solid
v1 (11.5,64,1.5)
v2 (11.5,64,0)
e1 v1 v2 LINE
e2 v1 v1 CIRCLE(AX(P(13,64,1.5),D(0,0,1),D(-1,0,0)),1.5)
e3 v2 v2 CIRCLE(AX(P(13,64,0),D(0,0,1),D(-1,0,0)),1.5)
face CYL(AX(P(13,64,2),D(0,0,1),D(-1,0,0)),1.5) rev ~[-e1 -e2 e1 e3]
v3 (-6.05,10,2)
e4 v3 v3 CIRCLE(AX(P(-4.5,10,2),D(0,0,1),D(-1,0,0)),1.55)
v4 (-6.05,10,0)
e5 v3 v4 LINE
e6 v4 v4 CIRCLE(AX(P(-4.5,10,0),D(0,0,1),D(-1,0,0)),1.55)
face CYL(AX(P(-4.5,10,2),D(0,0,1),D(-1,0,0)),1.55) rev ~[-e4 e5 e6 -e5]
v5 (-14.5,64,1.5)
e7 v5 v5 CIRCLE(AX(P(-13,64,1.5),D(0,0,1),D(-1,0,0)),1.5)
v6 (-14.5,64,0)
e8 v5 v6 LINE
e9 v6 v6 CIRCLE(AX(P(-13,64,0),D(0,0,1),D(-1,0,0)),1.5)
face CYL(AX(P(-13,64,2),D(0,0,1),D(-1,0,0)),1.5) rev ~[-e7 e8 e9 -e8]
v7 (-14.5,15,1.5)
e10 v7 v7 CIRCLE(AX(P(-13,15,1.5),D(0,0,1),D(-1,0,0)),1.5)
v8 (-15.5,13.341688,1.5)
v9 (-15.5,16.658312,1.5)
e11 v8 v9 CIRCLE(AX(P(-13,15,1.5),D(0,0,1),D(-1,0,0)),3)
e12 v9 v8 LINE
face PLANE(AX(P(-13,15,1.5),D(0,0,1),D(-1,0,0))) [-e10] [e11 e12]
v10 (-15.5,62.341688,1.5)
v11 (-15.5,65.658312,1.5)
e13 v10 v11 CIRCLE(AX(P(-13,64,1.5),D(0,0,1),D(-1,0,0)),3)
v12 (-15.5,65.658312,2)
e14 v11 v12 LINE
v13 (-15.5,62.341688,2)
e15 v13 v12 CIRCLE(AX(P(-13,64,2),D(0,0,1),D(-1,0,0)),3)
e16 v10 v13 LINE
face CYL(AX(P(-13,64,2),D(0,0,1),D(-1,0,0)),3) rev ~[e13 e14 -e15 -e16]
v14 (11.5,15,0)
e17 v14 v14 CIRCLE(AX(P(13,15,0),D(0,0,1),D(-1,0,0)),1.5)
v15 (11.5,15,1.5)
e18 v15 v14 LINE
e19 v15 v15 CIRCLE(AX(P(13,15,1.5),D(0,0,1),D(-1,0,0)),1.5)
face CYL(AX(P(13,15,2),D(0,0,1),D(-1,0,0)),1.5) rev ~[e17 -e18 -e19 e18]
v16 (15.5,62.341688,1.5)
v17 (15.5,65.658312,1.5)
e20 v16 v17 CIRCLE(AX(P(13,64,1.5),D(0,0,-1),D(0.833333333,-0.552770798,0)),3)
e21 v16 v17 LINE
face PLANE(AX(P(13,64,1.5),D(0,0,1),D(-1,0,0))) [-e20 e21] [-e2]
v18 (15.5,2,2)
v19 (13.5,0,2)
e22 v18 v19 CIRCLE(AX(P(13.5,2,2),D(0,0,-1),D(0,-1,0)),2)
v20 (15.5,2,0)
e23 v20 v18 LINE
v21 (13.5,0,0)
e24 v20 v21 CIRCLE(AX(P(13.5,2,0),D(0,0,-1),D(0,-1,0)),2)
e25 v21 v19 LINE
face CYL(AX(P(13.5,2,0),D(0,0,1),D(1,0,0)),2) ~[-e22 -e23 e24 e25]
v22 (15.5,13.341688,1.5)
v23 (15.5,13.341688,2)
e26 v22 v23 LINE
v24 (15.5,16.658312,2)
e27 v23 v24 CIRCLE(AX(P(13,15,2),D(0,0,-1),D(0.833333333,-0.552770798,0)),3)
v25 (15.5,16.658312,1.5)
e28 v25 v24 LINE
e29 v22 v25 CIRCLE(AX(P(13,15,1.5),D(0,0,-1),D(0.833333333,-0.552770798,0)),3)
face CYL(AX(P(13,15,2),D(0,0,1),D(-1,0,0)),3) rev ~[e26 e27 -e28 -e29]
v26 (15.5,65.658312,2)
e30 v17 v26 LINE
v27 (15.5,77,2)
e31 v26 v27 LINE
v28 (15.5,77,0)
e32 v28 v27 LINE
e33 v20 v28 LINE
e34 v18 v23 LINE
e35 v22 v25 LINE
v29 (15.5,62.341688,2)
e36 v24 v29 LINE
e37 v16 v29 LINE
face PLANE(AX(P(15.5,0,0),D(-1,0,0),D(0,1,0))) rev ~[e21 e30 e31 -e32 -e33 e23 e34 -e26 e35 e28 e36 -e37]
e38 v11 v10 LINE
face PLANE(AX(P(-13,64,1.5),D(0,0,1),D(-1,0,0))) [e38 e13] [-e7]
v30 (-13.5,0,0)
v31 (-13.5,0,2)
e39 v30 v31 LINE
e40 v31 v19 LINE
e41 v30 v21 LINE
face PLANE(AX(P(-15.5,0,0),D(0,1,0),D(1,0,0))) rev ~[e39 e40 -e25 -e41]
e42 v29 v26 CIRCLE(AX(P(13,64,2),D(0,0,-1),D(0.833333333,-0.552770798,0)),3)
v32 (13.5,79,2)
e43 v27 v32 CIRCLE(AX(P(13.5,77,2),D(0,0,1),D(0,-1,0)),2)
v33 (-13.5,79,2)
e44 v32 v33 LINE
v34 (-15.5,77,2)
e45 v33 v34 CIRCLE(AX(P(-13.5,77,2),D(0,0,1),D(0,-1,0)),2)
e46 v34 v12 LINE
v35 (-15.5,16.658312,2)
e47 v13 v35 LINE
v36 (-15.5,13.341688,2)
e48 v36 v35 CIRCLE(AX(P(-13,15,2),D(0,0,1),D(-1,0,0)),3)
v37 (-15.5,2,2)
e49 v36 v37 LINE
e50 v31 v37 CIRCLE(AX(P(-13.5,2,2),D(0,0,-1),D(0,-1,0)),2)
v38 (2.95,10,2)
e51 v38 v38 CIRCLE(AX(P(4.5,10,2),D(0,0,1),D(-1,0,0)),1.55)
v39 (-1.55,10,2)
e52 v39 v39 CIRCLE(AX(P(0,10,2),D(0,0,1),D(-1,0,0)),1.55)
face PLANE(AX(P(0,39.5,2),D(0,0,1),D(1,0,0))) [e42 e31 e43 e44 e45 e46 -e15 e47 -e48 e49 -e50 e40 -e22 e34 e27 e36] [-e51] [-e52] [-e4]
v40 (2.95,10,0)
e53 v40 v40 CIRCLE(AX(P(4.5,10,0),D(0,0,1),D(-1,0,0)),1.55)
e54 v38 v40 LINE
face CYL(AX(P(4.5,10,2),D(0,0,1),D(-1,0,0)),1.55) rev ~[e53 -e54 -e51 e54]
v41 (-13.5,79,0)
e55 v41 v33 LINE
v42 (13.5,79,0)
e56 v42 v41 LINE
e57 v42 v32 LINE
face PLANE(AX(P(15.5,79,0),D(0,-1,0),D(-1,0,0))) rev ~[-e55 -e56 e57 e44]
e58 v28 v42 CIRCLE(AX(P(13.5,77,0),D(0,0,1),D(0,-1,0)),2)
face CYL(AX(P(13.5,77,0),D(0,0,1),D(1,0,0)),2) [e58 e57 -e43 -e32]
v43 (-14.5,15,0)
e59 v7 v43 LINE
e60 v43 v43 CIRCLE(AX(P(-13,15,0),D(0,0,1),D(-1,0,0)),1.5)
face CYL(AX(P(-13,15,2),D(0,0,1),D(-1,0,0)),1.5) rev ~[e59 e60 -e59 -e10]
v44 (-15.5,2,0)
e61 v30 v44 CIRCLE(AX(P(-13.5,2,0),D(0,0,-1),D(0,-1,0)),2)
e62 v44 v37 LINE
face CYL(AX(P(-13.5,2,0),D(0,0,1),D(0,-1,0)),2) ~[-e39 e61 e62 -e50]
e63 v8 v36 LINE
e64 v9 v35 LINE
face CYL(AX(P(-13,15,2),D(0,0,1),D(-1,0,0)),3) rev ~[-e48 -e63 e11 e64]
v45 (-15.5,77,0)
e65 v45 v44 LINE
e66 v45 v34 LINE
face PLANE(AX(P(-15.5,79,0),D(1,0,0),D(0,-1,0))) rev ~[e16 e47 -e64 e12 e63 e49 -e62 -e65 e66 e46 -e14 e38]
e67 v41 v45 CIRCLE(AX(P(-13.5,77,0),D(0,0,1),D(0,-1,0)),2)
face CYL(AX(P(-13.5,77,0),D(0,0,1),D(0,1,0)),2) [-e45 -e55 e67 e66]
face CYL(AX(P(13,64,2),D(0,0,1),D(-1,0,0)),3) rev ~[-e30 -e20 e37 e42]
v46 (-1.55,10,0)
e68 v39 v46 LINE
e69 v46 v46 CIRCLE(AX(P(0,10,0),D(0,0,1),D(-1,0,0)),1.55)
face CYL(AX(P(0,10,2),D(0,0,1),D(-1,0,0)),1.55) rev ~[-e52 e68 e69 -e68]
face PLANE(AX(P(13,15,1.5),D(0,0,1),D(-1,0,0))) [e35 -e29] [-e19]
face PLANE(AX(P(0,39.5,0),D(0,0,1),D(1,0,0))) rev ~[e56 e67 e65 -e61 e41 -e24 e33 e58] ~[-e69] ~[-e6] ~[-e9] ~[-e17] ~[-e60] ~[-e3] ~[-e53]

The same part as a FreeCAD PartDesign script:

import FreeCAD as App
import Part
import Sketcher

V = App.Vector
Q = App.Units.Quantity


def edges_at(feature, points):
    """Names of the edges that pass closest to the given points."""
    edges = feature.Shape.Edges
    near = lambda p: min(range(len(edges)), key=lambda i: edges[i].distToShape(Part.Vertex(*p))[0])
    return sorted({f"Edge{near(p) + 1}" for p in points})

doc = App.newDocument("Part")
body = doc.addObject("PartDesign::Body", "Body")

sketch1 = body.newObject("Sketcher::SketchObject", "Sketch")
sketch1.AttachmentSupport = (doc.getObject("XY_Plane"), [""])
sketch1.MapMode = "FlatFace"
sketch1.addGeometry(Part.LineSegment(V(16, 0, 0), V(16, 79, 0)), False)
sketch1.addGeometry(Part.LineSegment(V(16, 79, 0), V(-16, 79, 0)), False)
sketch1.addGeometry(Part.LineSegment(V(-16, 79, 0), V(-16, 0, 0)), False)
sketch1.addGeometry(Part.LineSegment(V(-16, 0, 0), V(16, 0, 0)), False)
sketch1.addConstraint(Sketcher.Constraint("Coincident", 0, 2, 1, 1))
sketch1.addConstraint(Sketcher.Constraint("Coincident", 1, 2, 2, 1))
sketch1.addConstraint(Sketcher.Constraint("Coincident", 2, 2, 3, 1))
sketch1.addConstraint(Sketcher.Constraint("Coincident", 3, 2, 0, 1))
sketch1.addConstraint(Sketcher.Constraint("Vertical", 0))
sketch1.addConstraint(Sketcher.Constraint("Horizontal", 1))
sketch1.addConstraint(Sketcher.Constraint("Vertical", 2))
sketch1.addConstraint(Sketcher.Constraint("Horizontal", 3))
sketch1.addConstraint(Sketcher.Constraint("Symmetric", 2, 2, 3, 2, -1, 1))
sketch1.addConstraint(Sketcher.Constraint("DistanceX", 1, 2, 1, 1, Q("31 mm")))
sketch1.addConstraint(Sketcher.Constraint("DistanceY", 0, 1, 0, 2, Q("79 mm")))
pad1 = body.newObject("PartDesign::Pad", "Pad")
pad1.Profile = sketch1
pad1.Length = 2

sketch2 = body.newObject("Sketcher::SketchObject", "Sketch001")
sketch2.AttachmentSupport = (doc.getObject("XY_Plane"), [""])
sketch2.MapMode = "FlatFace"
sketch2.AttachmentOffset = App.Placement(V(0, 0, 2), App.Rotation())
sketch2.addGeometry(Part.Circle(V(13, 15, 0), V(0, 0, 1), 1.5), False)
sketch2.addGeometry(Part.Circle(V(-13, 15, 0), V(0, 0, 1), 1.5), False)
sketch2.addGeometry(Part.Circle(V(13, 64, 0), V(0, 0, 1), 1.5), False)
sketch2.addGeometry(Part.Circle(V(-13, 64, 0), V(0, 0, 1), 1.5), False)
sketch2.addConstraint(Sketcher.Constraint("Equal", 0, 1))
sketch2.addConstraint(Sketcher.Constraint("Equal", 1, 2))
sketch2.addConstraint(Sketcher.Constraint("Equal", 2, 3))
sketch2.addConstraint(Sketcher.Constraint("Symmetric", 0, 3, 1, 3, -2))
sketch2.addConstraint(Sketcher.Constraint("Symmetric", 2, 3, 3, 3, -2))
sketch2.addConstraint(Sketcher.Constraint("Vertical", 0, 3, 2, 3))
sketch2.addConstraint(Sketcher.Constraint("Diameter", 0, Q("3 mm")))
sketch2.addConstraint(Sketcher.Constraint("DistanceX", -1, 1, 0, 3, Q("13 mm")))
sketch2.addConstraint(Sketcher.Constraint("DistanceY", -1, 1, 0, 3, Q("15 mm")))
sketch2.addConstraint(Sketcher.Constraint("DistanceY", -1, 1, 2, 3, Q("64 mm")))
pocket1 = body.newObject("PartDesign::Pocket", "Pocket")
pocket1.Profile = sketch2
pocket1.Type = "ThroughAll"

sketch3 = body.newObject("Sketcher::SketchObject", "Sketch002")
sketch3.AttachmentSupport = (doc.getObject("XY_Plane"), [""])
sketch3.MapMode = "FlatFace"
sketch3.AttachmentOffset = App.Placement(V(0, 0, 2), App.Rotation())
sketch3.addGeometry(Part.Circle(V(13, 15, 0), V(0, 0, 1), 3), False)
sketch3.addGeometry(Part.Circle(V(-13, 15, 0), V(0, 0, 1), 3), False)
sketch3.addGeometry(Part.Circle(V(13, 64, 0), V(0, 0, 1), 3), False)
sketch3.addGeometry(Part.Circle(V(-13, 64, 0), V(0, 0, 1), 3), False)
sketch3.addConstraint(Sketcher.Constraint("Equal", 0, 1))
sketch3.addConstraint(Sketcher.Constraint("Equal", 1, 2))
sketch3.addConstraint(Sketcher.Constraint("Equal", 2, 3))
sketch3.addConstraint(Sketcher.Constraint("Symmetric", 0, 3, 1, 3, -2))
sketch3.addConstraint(Sketcher.Constraint("Symmetric", 2, 3, 3, 3, -2))
sketch3.addConstraint(Sketcher.Constraint("Vertical", 0, 3, 2, 3))
sketch3.addConstraint(Sketcher.Constraint("Diameter", 0, Q("6 mm")))
sketch3.addConstraint(Sketcher.Constraint("DistanceX", -1, 1, 0, 3, Q("13 mm")))
sketch3.addConstraint(Sketcher.Constraint("DistanceY", -1, 1, 0, 3, Q("15 mm")))
sketch3.addConstraint(Sketcher.Constraint("DistanceY", -1, 1, 2, 3, Q("64 mm")))
pocket2 = body.newObject("PartDesign::Pocket", "Pocket001")
pocket2.Profile = sketch3
pocket2.Length = 0.5

sketch4 = body.newObject("Sketcher::SketchObject", "Sketch003")
sketch4.AttachmentSupport = (doc.getObject("XY_Plane"), [""])
sketch4.MapMode = "FlatFace"
sketch4.AttachmentOffset = App.Placement(V(0, 0, 2), App.Rotation())
sketch4.addGeometry(Part.Circle(V(0, 10, 0), V(0, 0, 1), 1.6), False)
sketch4.addGeometry(Part.Circle(V(4.5, 10, 0), V(0, 0, 1), 1.6), False)
sketch4.addGeometry(Part.Circle(V(-4.5, 10, 0), V(0, 0, 1), 1.6), False)
sketch4.addConstraint(Sketcher.Constraint("Equal", 0, 1))
sketch4.addConstraint(Sketcher.Constraint("Equal", 1, 2))
sketch4.addConstraint(Sketcher.Constraint("Symmetric", 1, 3, 2, 3, -2))
sketch4.addConstraint(Sketcher.Constraint("PointOnObject", 0, 3, -2))
sketch4.addConstraint(Sketcher.Constraint("Horizontal", 0, 3, 1, 3))
sketch4.addConstraint(Sketcher.Constraint("Diameter", 0, Q("3.1 mm")))
sketch4.addConstraint(Sketcher.Constraint("DistanceY", -1, 1, 0, 3, Q("10 mm")))
sketch4.addConstraint(Sketcher.Constraint("DistanceX", 2, 3, 1, 3, Q("9 mm")))
pocket3 = body.newObject("PartDesign::Pocket", "Pocket002")
pocket3.Profile = sketch4
pocket3.Type = "ThroughAll"
doc.recompute()

fillet = body.newObject("PartDesign::Fillet", "Fillet")
fillet.Base = (pocket3, edges_at(pocket3, [
    (15.5, 79, 1),
    (-15.5, 79, 1),
    (-15.5, 0, 1),
    (15.5, 0, 1),
]))
fillet.Radius = 2

doc.recompute()
